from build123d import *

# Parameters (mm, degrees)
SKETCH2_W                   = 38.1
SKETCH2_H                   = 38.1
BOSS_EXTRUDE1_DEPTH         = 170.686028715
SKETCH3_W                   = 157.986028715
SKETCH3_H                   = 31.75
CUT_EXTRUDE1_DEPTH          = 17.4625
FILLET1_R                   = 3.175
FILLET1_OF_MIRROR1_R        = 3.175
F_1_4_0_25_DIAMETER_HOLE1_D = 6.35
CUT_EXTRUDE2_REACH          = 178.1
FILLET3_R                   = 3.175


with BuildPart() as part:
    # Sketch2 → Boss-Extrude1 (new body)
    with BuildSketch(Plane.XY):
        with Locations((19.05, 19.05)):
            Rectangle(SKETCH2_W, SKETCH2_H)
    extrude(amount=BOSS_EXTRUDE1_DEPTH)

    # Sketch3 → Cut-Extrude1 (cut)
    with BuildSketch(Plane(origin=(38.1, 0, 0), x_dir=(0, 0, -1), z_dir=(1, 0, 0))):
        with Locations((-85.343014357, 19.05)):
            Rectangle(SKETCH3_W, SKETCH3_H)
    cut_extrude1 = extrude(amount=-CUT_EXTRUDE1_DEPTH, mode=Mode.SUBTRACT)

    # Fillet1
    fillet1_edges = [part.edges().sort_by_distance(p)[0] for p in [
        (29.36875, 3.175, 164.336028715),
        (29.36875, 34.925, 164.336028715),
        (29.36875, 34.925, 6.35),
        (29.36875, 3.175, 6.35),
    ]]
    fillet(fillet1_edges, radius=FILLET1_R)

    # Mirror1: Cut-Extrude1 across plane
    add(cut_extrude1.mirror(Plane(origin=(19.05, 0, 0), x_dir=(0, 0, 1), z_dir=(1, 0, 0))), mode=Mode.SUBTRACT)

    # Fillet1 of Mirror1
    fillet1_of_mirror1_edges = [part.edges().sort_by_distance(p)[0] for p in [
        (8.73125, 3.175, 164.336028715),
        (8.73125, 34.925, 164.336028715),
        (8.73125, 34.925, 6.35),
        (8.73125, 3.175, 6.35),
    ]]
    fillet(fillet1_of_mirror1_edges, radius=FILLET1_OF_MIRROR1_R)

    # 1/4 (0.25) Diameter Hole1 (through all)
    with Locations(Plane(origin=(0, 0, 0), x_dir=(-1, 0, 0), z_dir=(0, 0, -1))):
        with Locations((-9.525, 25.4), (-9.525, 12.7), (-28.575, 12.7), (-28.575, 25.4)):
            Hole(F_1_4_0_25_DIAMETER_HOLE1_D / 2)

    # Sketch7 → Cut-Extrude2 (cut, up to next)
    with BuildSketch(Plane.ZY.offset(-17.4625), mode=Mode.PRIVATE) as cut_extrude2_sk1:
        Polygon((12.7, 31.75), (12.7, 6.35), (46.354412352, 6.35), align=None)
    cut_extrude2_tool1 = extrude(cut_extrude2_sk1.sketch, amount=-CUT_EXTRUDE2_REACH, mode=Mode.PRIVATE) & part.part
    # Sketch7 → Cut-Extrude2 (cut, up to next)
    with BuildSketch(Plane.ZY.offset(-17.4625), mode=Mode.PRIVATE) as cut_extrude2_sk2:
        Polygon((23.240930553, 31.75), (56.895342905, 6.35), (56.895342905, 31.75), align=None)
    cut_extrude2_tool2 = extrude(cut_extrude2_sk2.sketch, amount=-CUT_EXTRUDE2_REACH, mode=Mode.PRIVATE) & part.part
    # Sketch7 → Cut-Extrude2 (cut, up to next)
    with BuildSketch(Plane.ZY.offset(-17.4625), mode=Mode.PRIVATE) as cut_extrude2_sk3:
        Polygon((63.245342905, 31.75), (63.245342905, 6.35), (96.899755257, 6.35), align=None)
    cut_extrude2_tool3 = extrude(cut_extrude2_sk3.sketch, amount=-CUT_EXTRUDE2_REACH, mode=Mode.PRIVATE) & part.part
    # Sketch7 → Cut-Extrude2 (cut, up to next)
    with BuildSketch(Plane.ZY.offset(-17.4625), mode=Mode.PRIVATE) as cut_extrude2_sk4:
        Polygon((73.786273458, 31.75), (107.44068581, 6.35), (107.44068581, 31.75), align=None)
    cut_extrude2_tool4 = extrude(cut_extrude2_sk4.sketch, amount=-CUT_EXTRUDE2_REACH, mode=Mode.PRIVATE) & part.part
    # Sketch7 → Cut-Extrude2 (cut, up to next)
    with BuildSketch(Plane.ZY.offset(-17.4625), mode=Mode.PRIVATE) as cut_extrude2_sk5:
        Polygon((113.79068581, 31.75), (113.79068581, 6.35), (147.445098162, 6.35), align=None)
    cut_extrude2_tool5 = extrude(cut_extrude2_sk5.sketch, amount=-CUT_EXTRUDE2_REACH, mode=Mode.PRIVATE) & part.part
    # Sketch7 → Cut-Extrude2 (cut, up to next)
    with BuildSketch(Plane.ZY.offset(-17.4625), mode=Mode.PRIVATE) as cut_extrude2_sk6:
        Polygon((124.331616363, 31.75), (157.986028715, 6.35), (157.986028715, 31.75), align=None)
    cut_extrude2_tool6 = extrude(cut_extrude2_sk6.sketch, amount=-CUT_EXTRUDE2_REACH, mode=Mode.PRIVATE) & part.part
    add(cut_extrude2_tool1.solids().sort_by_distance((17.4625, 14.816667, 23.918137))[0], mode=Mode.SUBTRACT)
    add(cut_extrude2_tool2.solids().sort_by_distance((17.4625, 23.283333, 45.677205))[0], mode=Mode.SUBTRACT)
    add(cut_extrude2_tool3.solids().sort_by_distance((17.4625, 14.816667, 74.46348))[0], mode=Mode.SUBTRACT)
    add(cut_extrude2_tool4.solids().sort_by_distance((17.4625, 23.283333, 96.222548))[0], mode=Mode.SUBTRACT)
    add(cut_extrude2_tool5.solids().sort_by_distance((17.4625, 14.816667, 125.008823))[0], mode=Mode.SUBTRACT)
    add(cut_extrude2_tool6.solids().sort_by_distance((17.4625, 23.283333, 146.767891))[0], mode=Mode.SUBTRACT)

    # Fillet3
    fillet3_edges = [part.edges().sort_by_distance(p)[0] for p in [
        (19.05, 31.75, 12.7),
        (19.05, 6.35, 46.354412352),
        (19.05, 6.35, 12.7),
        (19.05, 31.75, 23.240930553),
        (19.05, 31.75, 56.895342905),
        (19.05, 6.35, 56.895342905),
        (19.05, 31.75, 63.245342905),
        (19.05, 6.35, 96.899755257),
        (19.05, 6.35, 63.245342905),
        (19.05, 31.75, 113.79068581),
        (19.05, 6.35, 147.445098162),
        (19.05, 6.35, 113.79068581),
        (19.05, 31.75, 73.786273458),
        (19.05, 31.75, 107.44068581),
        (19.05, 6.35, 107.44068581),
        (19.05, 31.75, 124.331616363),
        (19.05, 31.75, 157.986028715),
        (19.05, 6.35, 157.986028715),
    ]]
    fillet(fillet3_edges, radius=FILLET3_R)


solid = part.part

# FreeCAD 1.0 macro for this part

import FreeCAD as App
import Part
import Sketcher

V = App.Vector
Q = App.Units.Quantity


def edges_at(feature, points):
    """Names of the edges that pass closest to the given points."""
    edges = feature.Shape.Edges
    near = lambda p: min(range(len(edges)), key=lambda i: edges[i].distToShape(Part.Vertex(*p))[0])
    return sorted({f"Edge{near(p) + 1}" for p in points})


def add_polygon(sketch, points):
    """Adds a closed chain of lines whose ends are joined by coincident constraints."""
    first, n = sketch.GeometryCount, len(points)
    for a, b in zip(points, points[1:] + points[:1]):
        sketch.addGeometry(Part.LineSegment(App.Vector(*a, 0), App.Vector(*b, 0)), False)
    for i in range(n):
        sketch.addConstraint(Sketcher.Constraint("Coincident", first + i, 2, first + (i + 1) % n, 1))

doc = App.newDocument("Part")
body = doc.addObject("PartDesign::Body", "Body")

# Sketch on XY plane
sketch1 = doc.addObject("Sketcher::SketchObject", "Sketch")
body.addObject(sketch1)
sketch1.AttachmentSupport = (doc.XY_Plane, [""])
sketch1.MapMode = "FlatFace"
add_polygon(sketch1, [(0, 38), (0, 0), (38, 0), (38, 38)])  # lines 0-3
sketch1.addConstraint([
    Sketcher.Constraint("Vertical", 0),
    Sketcher.Constraint("Horizontal", 1),
    Sketcher.Constraint("Vertical", 2),
    Sketcher.Constraint("Horizontal", 3),
    Sketcher.Constraint("Coincident", 0, 2, -1, 1),
    Sketcher.Constraint("Equal", 3, 0),
    Sketcher.Constraint("DistanceX", 1, 1, 1, 2, Q("1.5 in")),
])
pad1 = doc.addObject("PartDesign::Pad", "Pad")
body.addObject(pad1)
pad1.Profile = sketch1
pad1.Length = 170.686029

# Sketch on YZ plane
sketch2 = doc.addObject("Sketcher::SketchObject", "Sketch001")
body.addObject(sketch2)
sketch2.AttachmentSupport = (doc.YZ_Plane, [""])
sketch2.MapMode = "FlatFace"
sketch2.AttachmentOffset = App.Placement(V(0, 0, 1.5 * 25.4), App.Rotation())
add_polygon(sketch2, [(35, 164), (3, 164), (3, 6), (35, 6)])  # lines 0-3
sketch2.addConstraint([
    Sketcher.Constraint("Horizontal", 0),
    Sketcher.Constraint("Vertical", 1),
    Sketcher.Constraint("Horizontal", 2),
    Sketcher.Constraint("Vertical", 3),
    Sketcher.Constraint("DistanceX", 0, 2, 0, 1, Q("1.25 in")),
    Sketcher.Constraint("DistanceY", -1, 1, 1, 2, Q("0.25 in")),
    Sketcher.Constraint("DistanceX", -1, 1, 0, 2, Q("0.125 in")),
    Sketcher.Constraint("DistanceY", 1, 2, 1, 1, Q("157.986029 mm")),
])
pocket1 = doc.addObject("PartDesign::Pocket", "Pocket")
body.addObject(pocket1)
pocket1.Profile = sketch2
pocket1.Length = Q("0.6875 in")
doc.recompute()

fillet = doc.addObject("PartDesign::Fillet", "Fillet")
body.addObject(fillet)
fillet.Base = (pocket1, edges_at(pocket1, [
    (29.369, 3.175, 164.336),
    (29.369, 34.925, 164.336),
    (29.369, 34.925, 6.35),
    (29.369, 3.175, 6.35),
]))
fillet.Radius = Q("0.125 in")
doc.recompute()

datumplane = doc.addObject("PartDesign::Plane", "DatumPlane")
body.addObject(datumplane)
datumplane.AttachmentSupport = (doc.YZ_Plane, [""])
datumplane.MapMode = "FlatFace"
datumplane.AttachmentOffset = App.Placement(V(0, 0, 0.75 * 25.4), App.Rotation())
mirrored = doc.addObject("PartDesign::Mirrored", "Mirrored")
body.addObject(mirrored)
mirrored.Originals = [pocket1]
mirrored.MirrorPlane = (datumplane, [""])
body.Tip = mirrored
doc.recompute()

fillet2 = doc.addObject("PartDesign::Fillet", "Fillet001")
body.addObject(fillet2)
fillet2.Base = (mirrored, edges_at(mirrored, [
    (8.731, 3.175, 164.336),
    (8.731, 34.925, 164.336),
    (8.731, 34.925, 6.35),
    (8.731, 3.175, 6.35),
]))
fillet2.Radius = Q("0.125 in")

# Sketch on XY plane
sketch3 = doc.addObject("Sketcher::SketchObject", "Sketch002")
body.addObject(sketch3)
sketch3.AttachmentSupport = (doc.XY_Plane, [""])
sketch3.MapMode = "FlatFace"
sketch3.addGeometry([
    Part.Circle(V(9.5, 25.4, 0), V(0, 0, 1), 3.2),
    Part.Circle(V(9.5, 12.7, 0), V(0, 0, 1), 3.2),
    Part.Circle(V(28.6, 12.7, 0), V(0, 0, 1), 3.2),
    Part.Circle(V(28.6, 25.4, 0), V(0, 0, 1), 3.2),
], False)
sketch3.addConstraint([
    Sketcher.Constraint("Equal", 0, 1),
    Sketcher.Constraint("Equal", 1, 2),
    Sketcher.Constraint("Equal", 2, 3),
    Sketcher.Constraint("Horizontal", 1, 3, 2, 3),
    Sketcher.Constraint("Horizontal", 0, 3, 3, 3),
    Sketcher.Constraint("Vertical", 0, 3, 1, 3),
    Sketcher.Constraint("Vertical", 2, 3, 3, 3),
    Sketcher.Constraint("Diameter", 0, Q("0.25 in")),
    Sketcher.Constraint("DistanceY", -1, 1, 0, 3, Q("1 in")),
    Sketcher.Constraint("DistanceY", -1, 1, 1, 3, Q("0.5 in")),
    Sketcher.Constraint("DistanceX", 1, 3, 2, 3, Q("0.75 in")),
    Sketcher.Constraint("DistanceX", -1, 1, 0, 3, Q("0.375 in")),
])
doc.recompute()
hole = doc.addObject("PartDesign::Hole", "Hole")
body.addObject(hole)
hole.Profile = sketch3
hole.ThreadType = "None"
hole.Diameter = Q("0.25 in")
hole.DepthType = "ThroughAll"
hole.Reversed = True

# Sketch on YZ plane
sketch4 = doc.addObject("Sketcher::SketchObject", "Sketch003")
body.addObject(sketch4)
sketch4.AttachmentSupport = (doc.YZ_Plane, [""])
sketch4.MapMode = "FlatFace"
sketch4.AttachmentOffset = App.Placement(V(0, 0, 0.6875 * 25.4), App.Rotation())
add_polygon(sketch4, [(32, 13), (6, 13), (6, 46)])  # lines 0-2
sketch4.addConstraint([
    Sketcher.Constraint("Horizontal", 0),
    Sketcher.Constraint("Vertical", 1),
    Sketcher.Constraint("DistanceX", 0, 2, 0, 1, Q("1 in")),
    Sketcher.Constraint("DistanceY", -1, 1, 0, 2, Q("0.5 in")),
    Sketcher.Constraint("DistanceX", -1, 1, 0, 2, Q("0.25 in")),
    Sketcher.Constraint("DistanceY", 1, 1, 1, 2, Q("33.654412 mm")),
])
pocket2 = doc.addObject("PartDesign::Pocket", "Pocket001")
body.addObject(pocket2)
pocket2.Profile = sketch4
pocket2.Type = "UpToFirst"
pocket2.Reversed = True

# Sketch on YZ plane
sketch5 = doc.addObject("Sketcher::SketchObject", "Sketch004")
body.addObject(sketch5)
sketch5.AttachmentSupport = (doc.YZ_Plane, [""])
sketch5.MapMode = "FlatFace"
sketch5.AttachmentOffset = App.Placement(V(0, 0, 0.6875 * 25.4), App.Rotation())
add_polygon(sketch5, [(32, 23), (6, 57), (32, 57)])  # lines 0-2
sketch5.addConstraint([
    Sketcher.Constraint("Horizontal", 1),
    Sketcher.Constraint("Vertical", 2),
    Sketcher.Constraint("DistanceX", 1, 1, 1, 2, Q("1 in")),
    Sketcher.Constraint("DistanceX", -1, 1, 0, 2, Q("0.25 in")),
    Sketcher.Constraint("DistanceY", 2, 2, 2, 1, Q("33.654412 mm")),
    Sketcher.Constraint("DistanceY", -1, 1, 2, 2, Q("23.240931 mm")),
])
pocket3 = doc.addObject("PartDesign::Pocket", "Pocket002")
body.addObject(pocket3)
pocket3.Profile = sketch5
pocket3.Type = "UpToFirst"
pocket3.Reversed = True

# Sketch on YZ plane
sketch6 = doc.addObject("Sketcher::SketchObject", "Sketch005")
body.addObject(sketch6)
sketch6.AttachmentSupport = (doc.YZ_Plane, [""])
sketch6.MapMode = "FlatFace"
sketch6.AttachmentOffset = App.Placement(V(0, 0, 0.6875 * 25.4), App.Rotation())
add_polygon(sketch6, [(32, 63), (6, 63), (6, 97)])  # lines 0-2
sketch6.addConstraint([
    Sketcher.Constraint("Horizontal", 0),
    Sketcher.Constraint("Vertical", 1),
    Sketcher.Constraint("DistanceX", 0, 2, 0, 1, Q("1 in")),
    Sketcher.Constraint("DistanceX", -1, 1, 0, 2, Q("0.25 in")),
    Sketcher.Constraint("DistanceY", 1, 1, 1, 2, Q("33.654412 mm")),
    Sketcher.Constraint("DistanceY", -1, 1, 0, 2, Q("63.245343 mm")),
])
pocket4 = doc.addObject("PartDesign::Pocket", "Pocket003")
body.addObject(pocket4)
pocket4.Profile = sketch6
pocket4.Type = "UpToFirst"
pocket4.Reversed = True

# Sketch on YZ plane
sketch7 = doc.addObject("Sketcher::SketchObject", "Sketch006")
body.addObject(sketch7)
sketch7.AttachmentSupport = (doc.YZ_Plane, [""])
sketch7.MapMode = "FlatFace"
sketch7.AttachmentOffset = App.Placement(V(0, 0, 0.6875 * 25.4), App.Rotation())
add_polygon(sketch7, [(32, 74), (6, 107), (32, 107)])  # lines 0-2
sketch7.addConstraint([
    Sketcher.Constraint("Horizontal", 1),
    Sketcher.Constraint("Vertical", 2),
    Sketcher.Constraint("DistanceX", 1, 1, 1, 2, Q("1 in")),
    Sketcher.Constraint("DistanceX", -1, 1, 0, 2, Q("0.25 in")),
    Sketcher.Constraint("DistanceY", 2, 2, 2, 1, Q("33.654412 mm")),
    Sketcher.Constraint("DistanceY", -1, 1, 0, 2, Q("107.440686 mm")),
])
pocket5 = doc.addObject("PartDesign::Pocket", "Pocket004")
body.addObject(pocket5)
pocket5.Profile = sketch7
pocket5.Type = "UpToFirst"
pocket5.Reversed = True

# Sketch on YZ plane
sketch8 = doc.addObject("Sketcher::SketchObject", "Sketch007")
body.addObject(sketch8)
sketch8.AttachmentSupport = (doc.YZ_Plane, [""])
sketch8.MapMode = "FlatFace"
sketch8.AttachmentOffset = App.Placement(V(0, 0, 0.6875 * 25.4), App.Rotation())
add_polygon(sketch8, [(32, 114), (6, 114), (6, 147)])  # lines 0-2
sketch8.addConstraint([
    Sketcher.Constraint("Horizontal", 0),
    Sketcher.Constraint("Vertical", 1),
    Sketcher.Constraint("DistanceX", 0, 2, 0, 1, Q("1 in")),
    Sketcher.Constraint("DistanceX", -1, 1, 0, 2, Q("0.25 in")),
    Sketcher.Constraint("DistanceY", -1, 1, 1, 2, Q("147.445098 mm")),
    Sketcher.Constraint("DistanceY", 1, 1, 1, 2, Q("33.654412 mm")),
])
pocket6 = doc.addObject("PartDesign::Pocket", "Pocket005")
body.addObject(pocket6)
pocket6.Profile = sketch8
pocket6.Type = "UpToFirst"
pocket6.Reversed = True

# Sketch on YZ plane
sketch9 = doc.addObject("Sketcher::SketchObject", "Sketch008")
body.addObject(sketch9)
sketch9.AttachmentSupport = (doc.YZ_Plane, [""])
sketch9.MapMode = "FlatFace"
sketch9.AttachmentOffset = App.Placement(V(0, 0, 0.6875 * 25.4), App.Rotation())
add_polygon(sketch9, [(32, 124), (6, 158), (32, 158)])  # lines 0-2
sketch9.addConstraint([
    Sketcher.Constraint("Horizontal", 1),
    Sketcher.Constraint("Vertical", 2),
    Sketcher.Constraint("DistanceX", 1, 1, 1, 2, Q("1 in")),
    Sketcher.Constraint("DistanceX", -1, 1, 0, 2, Q("0.25 in")),
    Sketcher.Constraint("DistanceY", 2, 2, 2, 1, Q("33.654412 mm")),
    Sketcher.Constraint("DistanceY", -1, 1, 0, 2, Q("157.986029 mm")),
])
pocket7 = doc.addObject("PartDesign::Pocket", "Pocket006")
body.addObject(pocket7)
pocket7.Profile = sketch9
pocket7.Type = "UpToFirst"
pocket7.Reversed = True
doc.recompute()

fillet3 = doc.addObject("PartDesign::Fillet", "Fillet002")
body.addObject(fillet3)
fillet3.Base = (pocket7, edges_at(pocket7, [
    (19.05, 31.75, 12.7),
    (19.05, 6.35, 46.354),
    (19.05, 6.35, 12.7),
    (19.05, 31.75, 23.241),
    (19.05, 31.75, 56.895),
    (19.05, 6.35, 56.895),
    (19.05, 31.75, 63.245),
    (19.05, 6.35, 96.9),
    (19.05, 6.35, 63.245),
    (19.05, 31.75, 113.791),
    (19.05, 6.35, 147.445),
    (19.05, 6.35, 113.791),
    (19.05, 31.75, 73.786),
    (19.05, 31.75, 107.441),
    (19.05, 6.35, 107.441),
    (19.05, 31.75, 124.332),
    (19.05, 31.75, 157.986),
    (19.05, 6.35, 157.986),
]))
fillet3.Radius = Q("0.125 in")

doc.recompute()
